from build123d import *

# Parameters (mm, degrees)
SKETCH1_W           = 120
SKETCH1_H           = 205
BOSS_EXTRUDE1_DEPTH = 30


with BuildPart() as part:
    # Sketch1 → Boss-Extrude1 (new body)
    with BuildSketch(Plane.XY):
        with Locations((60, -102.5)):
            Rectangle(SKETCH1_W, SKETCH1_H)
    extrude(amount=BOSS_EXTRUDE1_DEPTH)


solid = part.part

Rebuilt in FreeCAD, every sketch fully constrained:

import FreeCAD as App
import Part
import Sketcher
from FreeCAD import Vector
Q = App.Units.Quantity


def add_polygon(sketch, points):
    """Adds a closed chain of lines whose ends are joined by coincident constraints."""
    first, n = sketch.GeometryCount, len(points)
    for a, b in zip(points, points[1:] + points[:1]):
        sketch.addGeometry(Part.LineSegment(App.Vector(*a, 0), App.Vector(*b, 0)), False)
    for i in range(n):
        sketch.addConstraint(Sketcher.Constraint("Coincident", first + i, 2, first + (i + 1) % n, 1))

doc = App.newDocument("Part")
body = doc.addObject("PartDesign::Body", "Body")

# Sketch on XY plane
sketch1 = body.newObject("Sketcher::SketchObject", "Sketch")
sketch1.AttachmentSupport = (doc.getObject("XY_Plane"), [""])
sketch1.MapMode = "FlatFace"
add_polygon(sketch1, [(0, 0), (0, -205), (120, -205), (120, 0)])  # lines 0-3
sketch1.addConstraint(Sketcher.Constraint("Vertical", 0))
sketch1.addConstraint(Sketcher.Constraint("Horizontal", 1))
sketch1.addConstraint(Sketcher.Constraint("Vertical", 2))
sketch1.addConstraint(Sketcher.Constraint("Horizontal", 3))
sketch1.addConstraint(Sketcher.Constraint("Coincident", 3, 2, -1, 1))
sketch1.addConstraint(Sketcher.Constraint("DistanceX", 1, 1, 1, 2, Q("120 mm")))
sketch1.addConstraint(Sketcher.Constraint("DistanceY", 0, 2, 0, 1, Q("205 mm")))
pad1 = body.newObject("PartDesign::Pad", "Pad")
pad1.Profile = sketch1
pad1.Length = 30

doc.recompute()
